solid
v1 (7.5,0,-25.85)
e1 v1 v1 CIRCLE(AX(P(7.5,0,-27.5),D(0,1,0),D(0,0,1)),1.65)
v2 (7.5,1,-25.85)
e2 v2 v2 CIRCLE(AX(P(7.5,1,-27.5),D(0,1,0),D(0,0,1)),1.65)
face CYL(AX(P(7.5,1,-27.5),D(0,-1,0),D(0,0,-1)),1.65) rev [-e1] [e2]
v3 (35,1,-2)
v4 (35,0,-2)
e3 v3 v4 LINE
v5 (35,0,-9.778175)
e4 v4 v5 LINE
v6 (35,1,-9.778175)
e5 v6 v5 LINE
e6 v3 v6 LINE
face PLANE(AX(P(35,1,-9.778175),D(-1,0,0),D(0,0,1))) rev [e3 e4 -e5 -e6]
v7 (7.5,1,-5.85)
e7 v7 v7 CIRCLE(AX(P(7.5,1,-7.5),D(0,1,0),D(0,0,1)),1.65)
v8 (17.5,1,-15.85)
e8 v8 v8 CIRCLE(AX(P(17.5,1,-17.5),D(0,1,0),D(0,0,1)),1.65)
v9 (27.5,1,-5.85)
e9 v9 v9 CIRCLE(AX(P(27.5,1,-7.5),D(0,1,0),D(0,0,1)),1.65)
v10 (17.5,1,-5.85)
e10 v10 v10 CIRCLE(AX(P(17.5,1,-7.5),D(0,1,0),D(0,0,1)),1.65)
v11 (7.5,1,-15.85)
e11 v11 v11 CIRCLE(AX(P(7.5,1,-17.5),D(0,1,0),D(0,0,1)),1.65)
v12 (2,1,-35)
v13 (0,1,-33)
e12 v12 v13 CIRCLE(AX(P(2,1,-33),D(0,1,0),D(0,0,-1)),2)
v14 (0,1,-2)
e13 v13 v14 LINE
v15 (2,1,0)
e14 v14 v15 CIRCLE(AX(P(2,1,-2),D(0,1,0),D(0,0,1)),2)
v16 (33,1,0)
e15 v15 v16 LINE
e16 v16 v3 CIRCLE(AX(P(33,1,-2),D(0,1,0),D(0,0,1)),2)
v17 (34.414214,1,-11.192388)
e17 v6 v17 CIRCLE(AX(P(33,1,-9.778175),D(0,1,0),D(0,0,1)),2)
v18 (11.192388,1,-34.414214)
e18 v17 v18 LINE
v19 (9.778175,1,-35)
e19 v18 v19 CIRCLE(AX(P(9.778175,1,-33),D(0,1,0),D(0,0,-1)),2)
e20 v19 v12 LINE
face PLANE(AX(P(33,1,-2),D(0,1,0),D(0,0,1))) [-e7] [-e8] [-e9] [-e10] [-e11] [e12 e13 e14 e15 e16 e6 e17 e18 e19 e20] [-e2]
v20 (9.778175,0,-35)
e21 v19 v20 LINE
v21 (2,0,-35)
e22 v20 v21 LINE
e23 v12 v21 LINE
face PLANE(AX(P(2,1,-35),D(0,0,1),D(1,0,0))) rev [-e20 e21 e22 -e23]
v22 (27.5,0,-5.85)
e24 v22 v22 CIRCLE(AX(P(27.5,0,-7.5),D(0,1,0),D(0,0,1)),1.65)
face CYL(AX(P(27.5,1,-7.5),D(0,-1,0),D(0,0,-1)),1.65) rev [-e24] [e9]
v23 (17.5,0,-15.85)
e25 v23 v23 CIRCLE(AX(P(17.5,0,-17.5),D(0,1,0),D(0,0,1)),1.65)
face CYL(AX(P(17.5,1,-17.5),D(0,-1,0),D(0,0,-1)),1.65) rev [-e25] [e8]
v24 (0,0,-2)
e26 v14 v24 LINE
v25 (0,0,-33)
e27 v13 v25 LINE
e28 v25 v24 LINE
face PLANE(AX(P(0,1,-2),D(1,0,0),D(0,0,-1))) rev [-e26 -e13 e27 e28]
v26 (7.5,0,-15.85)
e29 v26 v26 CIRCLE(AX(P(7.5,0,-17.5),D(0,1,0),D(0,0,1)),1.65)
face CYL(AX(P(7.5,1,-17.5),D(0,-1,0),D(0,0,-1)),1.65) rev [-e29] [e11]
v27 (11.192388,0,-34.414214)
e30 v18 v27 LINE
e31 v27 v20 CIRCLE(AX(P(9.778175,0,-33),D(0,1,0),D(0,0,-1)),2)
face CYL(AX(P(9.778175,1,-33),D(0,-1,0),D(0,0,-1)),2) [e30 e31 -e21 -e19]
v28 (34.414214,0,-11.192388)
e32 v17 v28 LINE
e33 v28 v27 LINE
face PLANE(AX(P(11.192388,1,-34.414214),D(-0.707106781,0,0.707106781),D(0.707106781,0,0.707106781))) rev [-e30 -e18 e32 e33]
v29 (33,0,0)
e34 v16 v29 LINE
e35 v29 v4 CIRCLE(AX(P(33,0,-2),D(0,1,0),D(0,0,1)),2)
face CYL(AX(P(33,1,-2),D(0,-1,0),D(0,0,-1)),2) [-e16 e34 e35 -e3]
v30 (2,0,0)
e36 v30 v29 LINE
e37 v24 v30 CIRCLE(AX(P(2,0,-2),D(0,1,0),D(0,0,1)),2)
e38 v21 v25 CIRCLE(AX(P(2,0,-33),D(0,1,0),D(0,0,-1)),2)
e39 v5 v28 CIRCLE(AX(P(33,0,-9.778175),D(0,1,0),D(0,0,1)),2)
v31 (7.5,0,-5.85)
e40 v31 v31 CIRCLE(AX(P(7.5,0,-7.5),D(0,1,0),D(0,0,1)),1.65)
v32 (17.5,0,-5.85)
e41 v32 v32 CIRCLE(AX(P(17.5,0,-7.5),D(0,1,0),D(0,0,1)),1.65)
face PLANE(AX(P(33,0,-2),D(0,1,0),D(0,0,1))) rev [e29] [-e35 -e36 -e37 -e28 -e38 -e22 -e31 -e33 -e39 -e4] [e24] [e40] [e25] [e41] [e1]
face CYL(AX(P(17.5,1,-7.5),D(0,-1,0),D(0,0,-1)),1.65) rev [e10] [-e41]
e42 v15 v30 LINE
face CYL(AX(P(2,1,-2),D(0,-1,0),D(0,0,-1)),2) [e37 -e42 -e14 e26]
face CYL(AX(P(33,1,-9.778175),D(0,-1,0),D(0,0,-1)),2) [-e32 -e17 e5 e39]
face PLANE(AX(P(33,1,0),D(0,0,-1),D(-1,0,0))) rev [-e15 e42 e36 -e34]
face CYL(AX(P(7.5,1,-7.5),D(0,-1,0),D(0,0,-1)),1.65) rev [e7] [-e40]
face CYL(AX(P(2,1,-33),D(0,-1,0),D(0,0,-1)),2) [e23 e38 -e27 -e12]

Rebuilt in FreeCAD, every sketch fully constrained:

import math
import FreeCAD as App
import Part
import Sketcher

V = App.Vector
Q = App.Units.Quantity

doc = App.newDocument("Part")
body = doc.addObject("PartDesign::Body", "Body")

# Sketch on XZ plane
sketch1 = body.newObject("Sketcher::SketchObject", "Sketch")
sketch1.AttachmentSupport = (doc.getObject("XZ_Plane"), [""])
sketch1.MapMode = "FlatFace"
sketch1.addGeometry([
    Part.LineSegment(V(0, -33, 0), V(0, -2, 0)),  # 0
    Part.ArcOfCircle(Part.Circle(V(2, -2, 0), V(0, 0, 1), 2), math.radians(90), math.radians(180)),  # 1
    Part.LineSegment(V(2, 0, 0), V(33, 0, 0)),  # 2
    Part.ArcOfCircle(Part.Circle(V(33, -2, 0), V(0, 0, 1), 2), math.radians(0), math.radians(90)),  # 3
    Part.LineSegment(V(35, -2, 0), V(35, -9.8, 0)),  # 4
    Part.ArcOfCircle(Part.Circle(V(33, -9.8, 0), V(0, 0, 1), 2), math.radians(-45), math.radians(0)),  # 5
    Part.LineSegment(V(34.4, -11.2, 0), V(11.2, -34.4, 0)),  # 6
    Part.ArcOfCircle(Part.Circle(V(9.8, -33, 0), V(0, 0, 1), 2), math.radians(-90), math.radians(-45)),  # 7
    Part.LineSegment(V(9.8, -35, 0), V(2, -35, 0)),  # 8
    Part.ArcOfCircle(Part.Circle(V(2, -33, 0), V(0, 0, 1), 2), math.radians(-180), math.radians(-90)),  # 9
    Part.Circle(V(27.5, -7.5, 0), V(0, 0, 1), 1.6),  # 10
    Part.Circle(V(17.5, -7.5, 0), V(0, 0, 1), 1.6),  # 11
    Part.Circle(V(7.5, -7.5, 0), V(0, 0, 1), 1.6),  # 12
    Part.Circle(V(17.5, -17.5, 0), V(0, 0, 1), 1.6),  # 13
    Part.Circle(V(7.5, -17.5, 0), V(0, 0, 1), 1.6),  # 14
    Part.Circle(V(7.5, -27.5, 0), V(0, 0, 1), 1.6),  # 15
], False)
sketch1.addConstraint([
    Sketcher.Constraint("Tangent", 0, 2, 1, 2),
    Sketcher.Constraint("Tangent", 1, 1, 2, 1),
    Sketcher.Constraint("Tangent", 2, 2, 3, 2),
    Sketcher.Constraint("Tangent", 3, 1, 4, 1),
    Sketcher.Constraint("Tangent", 4, 2, 5, 2),
    Sketcher.Constraint("Tangent", 5, 1, 6, 1),
    Sketcher.Constraint("Tangent", 6, 2, 7, 2),
    Sketcher.Constraint("Tangent", 7, 1, 8, 1),
    Sketcher.Constraint("Tangent", 8, 2, 9, 2),
    Sketcher.Constraint("Tangent", 9, 1, 0, 1),
    Sketcher.Constraint("Vertical", 0),
    Sketcher.Constraint("Horizontal", 2),
    Sketcher.Constraint("Vertical", 4),
    Sketcher.Constraint("Horizontal", 8),
    Sketcher.Constraint("Equal", 1, 3),
    Sketcher.Constraint("Equal", 3, 5),
    Sketcher.Constraint("Equal", 5, 7),
    Sketcher.Constraint("Equal", 7, 9),
    Sketcher.Constraint("Equal", 10, 11),
    Sketcher.Constraint("Equal", 11, 12),
    Sketcher.Constraint("Equal", 12, 13),
    Sketcher.Constraint("Equal", 13, 14),
    Sketcher.Constraint("Equal", 14, 15),
    Sketcher.Constraint("PointOnObject", 0, 2, -2),
    Sketcher.Constraint("PointOnObject", 1, 1, -1),
    Sketcher.Constraint("Horizontal", 10, 3, 11, 3),
    Sketcher.Constraint("Horizontal", 11, 3, 12, 3),
    Sketcher.Constraint("Horizontal", 13, 3, 14, 3),
    Sketcher.Constraint("Vertical", 11, 3, 13, 3),
    Sketcher.Constraint("Vertical", 12, 3, 14, 3),
    Sketcher.Constraint("Vertical", 14, 3, 15, 3),
    Sketcher.Constraint("Equal", 2, 0),
    Sketcher.Constraint("Equal", 8, 4),
    Sketcher.Constraint("Radius", 1, Q("2 mm")),
    Sketcher.Constraint("Diameter", 10, Q("3.3 mm")),
    Sketcher.Constraint("DistanceX", 2, 1, 2, 2, Q("31 mm")),
    Sketcher.Constraint("DistanceX", 11, 3, 10, 3, Q("10 mm")),
    Sketcher.Constraint("DistanceX", 12, 3, 11, 3, Q("10 mm")),
    Sketcher.Constraint("DistanceY", 13, 3, 11, 3, Q("10 mm")),
    Sketcher.Constraint("DistanceY", 15, 3, 14, 3, Q("10 mm")),
    Sketcher.Constraint("DistanceX", -1, 1, 10, 3, Q("27.5 mm")),
    Sketcher.Constraint("DistanceY", 10, 3, -1, 1, Q("7.5 mm")),
    Sketcher.Constraint("Distance", 6, Q("32.84062 mm")),
])
pad1 = body.newObject("PartDesign::Pad", "Pad")
pad1.Profile = sketch1
pad1.Length = 1
pad1.Reversed = True

doc.recompute()
